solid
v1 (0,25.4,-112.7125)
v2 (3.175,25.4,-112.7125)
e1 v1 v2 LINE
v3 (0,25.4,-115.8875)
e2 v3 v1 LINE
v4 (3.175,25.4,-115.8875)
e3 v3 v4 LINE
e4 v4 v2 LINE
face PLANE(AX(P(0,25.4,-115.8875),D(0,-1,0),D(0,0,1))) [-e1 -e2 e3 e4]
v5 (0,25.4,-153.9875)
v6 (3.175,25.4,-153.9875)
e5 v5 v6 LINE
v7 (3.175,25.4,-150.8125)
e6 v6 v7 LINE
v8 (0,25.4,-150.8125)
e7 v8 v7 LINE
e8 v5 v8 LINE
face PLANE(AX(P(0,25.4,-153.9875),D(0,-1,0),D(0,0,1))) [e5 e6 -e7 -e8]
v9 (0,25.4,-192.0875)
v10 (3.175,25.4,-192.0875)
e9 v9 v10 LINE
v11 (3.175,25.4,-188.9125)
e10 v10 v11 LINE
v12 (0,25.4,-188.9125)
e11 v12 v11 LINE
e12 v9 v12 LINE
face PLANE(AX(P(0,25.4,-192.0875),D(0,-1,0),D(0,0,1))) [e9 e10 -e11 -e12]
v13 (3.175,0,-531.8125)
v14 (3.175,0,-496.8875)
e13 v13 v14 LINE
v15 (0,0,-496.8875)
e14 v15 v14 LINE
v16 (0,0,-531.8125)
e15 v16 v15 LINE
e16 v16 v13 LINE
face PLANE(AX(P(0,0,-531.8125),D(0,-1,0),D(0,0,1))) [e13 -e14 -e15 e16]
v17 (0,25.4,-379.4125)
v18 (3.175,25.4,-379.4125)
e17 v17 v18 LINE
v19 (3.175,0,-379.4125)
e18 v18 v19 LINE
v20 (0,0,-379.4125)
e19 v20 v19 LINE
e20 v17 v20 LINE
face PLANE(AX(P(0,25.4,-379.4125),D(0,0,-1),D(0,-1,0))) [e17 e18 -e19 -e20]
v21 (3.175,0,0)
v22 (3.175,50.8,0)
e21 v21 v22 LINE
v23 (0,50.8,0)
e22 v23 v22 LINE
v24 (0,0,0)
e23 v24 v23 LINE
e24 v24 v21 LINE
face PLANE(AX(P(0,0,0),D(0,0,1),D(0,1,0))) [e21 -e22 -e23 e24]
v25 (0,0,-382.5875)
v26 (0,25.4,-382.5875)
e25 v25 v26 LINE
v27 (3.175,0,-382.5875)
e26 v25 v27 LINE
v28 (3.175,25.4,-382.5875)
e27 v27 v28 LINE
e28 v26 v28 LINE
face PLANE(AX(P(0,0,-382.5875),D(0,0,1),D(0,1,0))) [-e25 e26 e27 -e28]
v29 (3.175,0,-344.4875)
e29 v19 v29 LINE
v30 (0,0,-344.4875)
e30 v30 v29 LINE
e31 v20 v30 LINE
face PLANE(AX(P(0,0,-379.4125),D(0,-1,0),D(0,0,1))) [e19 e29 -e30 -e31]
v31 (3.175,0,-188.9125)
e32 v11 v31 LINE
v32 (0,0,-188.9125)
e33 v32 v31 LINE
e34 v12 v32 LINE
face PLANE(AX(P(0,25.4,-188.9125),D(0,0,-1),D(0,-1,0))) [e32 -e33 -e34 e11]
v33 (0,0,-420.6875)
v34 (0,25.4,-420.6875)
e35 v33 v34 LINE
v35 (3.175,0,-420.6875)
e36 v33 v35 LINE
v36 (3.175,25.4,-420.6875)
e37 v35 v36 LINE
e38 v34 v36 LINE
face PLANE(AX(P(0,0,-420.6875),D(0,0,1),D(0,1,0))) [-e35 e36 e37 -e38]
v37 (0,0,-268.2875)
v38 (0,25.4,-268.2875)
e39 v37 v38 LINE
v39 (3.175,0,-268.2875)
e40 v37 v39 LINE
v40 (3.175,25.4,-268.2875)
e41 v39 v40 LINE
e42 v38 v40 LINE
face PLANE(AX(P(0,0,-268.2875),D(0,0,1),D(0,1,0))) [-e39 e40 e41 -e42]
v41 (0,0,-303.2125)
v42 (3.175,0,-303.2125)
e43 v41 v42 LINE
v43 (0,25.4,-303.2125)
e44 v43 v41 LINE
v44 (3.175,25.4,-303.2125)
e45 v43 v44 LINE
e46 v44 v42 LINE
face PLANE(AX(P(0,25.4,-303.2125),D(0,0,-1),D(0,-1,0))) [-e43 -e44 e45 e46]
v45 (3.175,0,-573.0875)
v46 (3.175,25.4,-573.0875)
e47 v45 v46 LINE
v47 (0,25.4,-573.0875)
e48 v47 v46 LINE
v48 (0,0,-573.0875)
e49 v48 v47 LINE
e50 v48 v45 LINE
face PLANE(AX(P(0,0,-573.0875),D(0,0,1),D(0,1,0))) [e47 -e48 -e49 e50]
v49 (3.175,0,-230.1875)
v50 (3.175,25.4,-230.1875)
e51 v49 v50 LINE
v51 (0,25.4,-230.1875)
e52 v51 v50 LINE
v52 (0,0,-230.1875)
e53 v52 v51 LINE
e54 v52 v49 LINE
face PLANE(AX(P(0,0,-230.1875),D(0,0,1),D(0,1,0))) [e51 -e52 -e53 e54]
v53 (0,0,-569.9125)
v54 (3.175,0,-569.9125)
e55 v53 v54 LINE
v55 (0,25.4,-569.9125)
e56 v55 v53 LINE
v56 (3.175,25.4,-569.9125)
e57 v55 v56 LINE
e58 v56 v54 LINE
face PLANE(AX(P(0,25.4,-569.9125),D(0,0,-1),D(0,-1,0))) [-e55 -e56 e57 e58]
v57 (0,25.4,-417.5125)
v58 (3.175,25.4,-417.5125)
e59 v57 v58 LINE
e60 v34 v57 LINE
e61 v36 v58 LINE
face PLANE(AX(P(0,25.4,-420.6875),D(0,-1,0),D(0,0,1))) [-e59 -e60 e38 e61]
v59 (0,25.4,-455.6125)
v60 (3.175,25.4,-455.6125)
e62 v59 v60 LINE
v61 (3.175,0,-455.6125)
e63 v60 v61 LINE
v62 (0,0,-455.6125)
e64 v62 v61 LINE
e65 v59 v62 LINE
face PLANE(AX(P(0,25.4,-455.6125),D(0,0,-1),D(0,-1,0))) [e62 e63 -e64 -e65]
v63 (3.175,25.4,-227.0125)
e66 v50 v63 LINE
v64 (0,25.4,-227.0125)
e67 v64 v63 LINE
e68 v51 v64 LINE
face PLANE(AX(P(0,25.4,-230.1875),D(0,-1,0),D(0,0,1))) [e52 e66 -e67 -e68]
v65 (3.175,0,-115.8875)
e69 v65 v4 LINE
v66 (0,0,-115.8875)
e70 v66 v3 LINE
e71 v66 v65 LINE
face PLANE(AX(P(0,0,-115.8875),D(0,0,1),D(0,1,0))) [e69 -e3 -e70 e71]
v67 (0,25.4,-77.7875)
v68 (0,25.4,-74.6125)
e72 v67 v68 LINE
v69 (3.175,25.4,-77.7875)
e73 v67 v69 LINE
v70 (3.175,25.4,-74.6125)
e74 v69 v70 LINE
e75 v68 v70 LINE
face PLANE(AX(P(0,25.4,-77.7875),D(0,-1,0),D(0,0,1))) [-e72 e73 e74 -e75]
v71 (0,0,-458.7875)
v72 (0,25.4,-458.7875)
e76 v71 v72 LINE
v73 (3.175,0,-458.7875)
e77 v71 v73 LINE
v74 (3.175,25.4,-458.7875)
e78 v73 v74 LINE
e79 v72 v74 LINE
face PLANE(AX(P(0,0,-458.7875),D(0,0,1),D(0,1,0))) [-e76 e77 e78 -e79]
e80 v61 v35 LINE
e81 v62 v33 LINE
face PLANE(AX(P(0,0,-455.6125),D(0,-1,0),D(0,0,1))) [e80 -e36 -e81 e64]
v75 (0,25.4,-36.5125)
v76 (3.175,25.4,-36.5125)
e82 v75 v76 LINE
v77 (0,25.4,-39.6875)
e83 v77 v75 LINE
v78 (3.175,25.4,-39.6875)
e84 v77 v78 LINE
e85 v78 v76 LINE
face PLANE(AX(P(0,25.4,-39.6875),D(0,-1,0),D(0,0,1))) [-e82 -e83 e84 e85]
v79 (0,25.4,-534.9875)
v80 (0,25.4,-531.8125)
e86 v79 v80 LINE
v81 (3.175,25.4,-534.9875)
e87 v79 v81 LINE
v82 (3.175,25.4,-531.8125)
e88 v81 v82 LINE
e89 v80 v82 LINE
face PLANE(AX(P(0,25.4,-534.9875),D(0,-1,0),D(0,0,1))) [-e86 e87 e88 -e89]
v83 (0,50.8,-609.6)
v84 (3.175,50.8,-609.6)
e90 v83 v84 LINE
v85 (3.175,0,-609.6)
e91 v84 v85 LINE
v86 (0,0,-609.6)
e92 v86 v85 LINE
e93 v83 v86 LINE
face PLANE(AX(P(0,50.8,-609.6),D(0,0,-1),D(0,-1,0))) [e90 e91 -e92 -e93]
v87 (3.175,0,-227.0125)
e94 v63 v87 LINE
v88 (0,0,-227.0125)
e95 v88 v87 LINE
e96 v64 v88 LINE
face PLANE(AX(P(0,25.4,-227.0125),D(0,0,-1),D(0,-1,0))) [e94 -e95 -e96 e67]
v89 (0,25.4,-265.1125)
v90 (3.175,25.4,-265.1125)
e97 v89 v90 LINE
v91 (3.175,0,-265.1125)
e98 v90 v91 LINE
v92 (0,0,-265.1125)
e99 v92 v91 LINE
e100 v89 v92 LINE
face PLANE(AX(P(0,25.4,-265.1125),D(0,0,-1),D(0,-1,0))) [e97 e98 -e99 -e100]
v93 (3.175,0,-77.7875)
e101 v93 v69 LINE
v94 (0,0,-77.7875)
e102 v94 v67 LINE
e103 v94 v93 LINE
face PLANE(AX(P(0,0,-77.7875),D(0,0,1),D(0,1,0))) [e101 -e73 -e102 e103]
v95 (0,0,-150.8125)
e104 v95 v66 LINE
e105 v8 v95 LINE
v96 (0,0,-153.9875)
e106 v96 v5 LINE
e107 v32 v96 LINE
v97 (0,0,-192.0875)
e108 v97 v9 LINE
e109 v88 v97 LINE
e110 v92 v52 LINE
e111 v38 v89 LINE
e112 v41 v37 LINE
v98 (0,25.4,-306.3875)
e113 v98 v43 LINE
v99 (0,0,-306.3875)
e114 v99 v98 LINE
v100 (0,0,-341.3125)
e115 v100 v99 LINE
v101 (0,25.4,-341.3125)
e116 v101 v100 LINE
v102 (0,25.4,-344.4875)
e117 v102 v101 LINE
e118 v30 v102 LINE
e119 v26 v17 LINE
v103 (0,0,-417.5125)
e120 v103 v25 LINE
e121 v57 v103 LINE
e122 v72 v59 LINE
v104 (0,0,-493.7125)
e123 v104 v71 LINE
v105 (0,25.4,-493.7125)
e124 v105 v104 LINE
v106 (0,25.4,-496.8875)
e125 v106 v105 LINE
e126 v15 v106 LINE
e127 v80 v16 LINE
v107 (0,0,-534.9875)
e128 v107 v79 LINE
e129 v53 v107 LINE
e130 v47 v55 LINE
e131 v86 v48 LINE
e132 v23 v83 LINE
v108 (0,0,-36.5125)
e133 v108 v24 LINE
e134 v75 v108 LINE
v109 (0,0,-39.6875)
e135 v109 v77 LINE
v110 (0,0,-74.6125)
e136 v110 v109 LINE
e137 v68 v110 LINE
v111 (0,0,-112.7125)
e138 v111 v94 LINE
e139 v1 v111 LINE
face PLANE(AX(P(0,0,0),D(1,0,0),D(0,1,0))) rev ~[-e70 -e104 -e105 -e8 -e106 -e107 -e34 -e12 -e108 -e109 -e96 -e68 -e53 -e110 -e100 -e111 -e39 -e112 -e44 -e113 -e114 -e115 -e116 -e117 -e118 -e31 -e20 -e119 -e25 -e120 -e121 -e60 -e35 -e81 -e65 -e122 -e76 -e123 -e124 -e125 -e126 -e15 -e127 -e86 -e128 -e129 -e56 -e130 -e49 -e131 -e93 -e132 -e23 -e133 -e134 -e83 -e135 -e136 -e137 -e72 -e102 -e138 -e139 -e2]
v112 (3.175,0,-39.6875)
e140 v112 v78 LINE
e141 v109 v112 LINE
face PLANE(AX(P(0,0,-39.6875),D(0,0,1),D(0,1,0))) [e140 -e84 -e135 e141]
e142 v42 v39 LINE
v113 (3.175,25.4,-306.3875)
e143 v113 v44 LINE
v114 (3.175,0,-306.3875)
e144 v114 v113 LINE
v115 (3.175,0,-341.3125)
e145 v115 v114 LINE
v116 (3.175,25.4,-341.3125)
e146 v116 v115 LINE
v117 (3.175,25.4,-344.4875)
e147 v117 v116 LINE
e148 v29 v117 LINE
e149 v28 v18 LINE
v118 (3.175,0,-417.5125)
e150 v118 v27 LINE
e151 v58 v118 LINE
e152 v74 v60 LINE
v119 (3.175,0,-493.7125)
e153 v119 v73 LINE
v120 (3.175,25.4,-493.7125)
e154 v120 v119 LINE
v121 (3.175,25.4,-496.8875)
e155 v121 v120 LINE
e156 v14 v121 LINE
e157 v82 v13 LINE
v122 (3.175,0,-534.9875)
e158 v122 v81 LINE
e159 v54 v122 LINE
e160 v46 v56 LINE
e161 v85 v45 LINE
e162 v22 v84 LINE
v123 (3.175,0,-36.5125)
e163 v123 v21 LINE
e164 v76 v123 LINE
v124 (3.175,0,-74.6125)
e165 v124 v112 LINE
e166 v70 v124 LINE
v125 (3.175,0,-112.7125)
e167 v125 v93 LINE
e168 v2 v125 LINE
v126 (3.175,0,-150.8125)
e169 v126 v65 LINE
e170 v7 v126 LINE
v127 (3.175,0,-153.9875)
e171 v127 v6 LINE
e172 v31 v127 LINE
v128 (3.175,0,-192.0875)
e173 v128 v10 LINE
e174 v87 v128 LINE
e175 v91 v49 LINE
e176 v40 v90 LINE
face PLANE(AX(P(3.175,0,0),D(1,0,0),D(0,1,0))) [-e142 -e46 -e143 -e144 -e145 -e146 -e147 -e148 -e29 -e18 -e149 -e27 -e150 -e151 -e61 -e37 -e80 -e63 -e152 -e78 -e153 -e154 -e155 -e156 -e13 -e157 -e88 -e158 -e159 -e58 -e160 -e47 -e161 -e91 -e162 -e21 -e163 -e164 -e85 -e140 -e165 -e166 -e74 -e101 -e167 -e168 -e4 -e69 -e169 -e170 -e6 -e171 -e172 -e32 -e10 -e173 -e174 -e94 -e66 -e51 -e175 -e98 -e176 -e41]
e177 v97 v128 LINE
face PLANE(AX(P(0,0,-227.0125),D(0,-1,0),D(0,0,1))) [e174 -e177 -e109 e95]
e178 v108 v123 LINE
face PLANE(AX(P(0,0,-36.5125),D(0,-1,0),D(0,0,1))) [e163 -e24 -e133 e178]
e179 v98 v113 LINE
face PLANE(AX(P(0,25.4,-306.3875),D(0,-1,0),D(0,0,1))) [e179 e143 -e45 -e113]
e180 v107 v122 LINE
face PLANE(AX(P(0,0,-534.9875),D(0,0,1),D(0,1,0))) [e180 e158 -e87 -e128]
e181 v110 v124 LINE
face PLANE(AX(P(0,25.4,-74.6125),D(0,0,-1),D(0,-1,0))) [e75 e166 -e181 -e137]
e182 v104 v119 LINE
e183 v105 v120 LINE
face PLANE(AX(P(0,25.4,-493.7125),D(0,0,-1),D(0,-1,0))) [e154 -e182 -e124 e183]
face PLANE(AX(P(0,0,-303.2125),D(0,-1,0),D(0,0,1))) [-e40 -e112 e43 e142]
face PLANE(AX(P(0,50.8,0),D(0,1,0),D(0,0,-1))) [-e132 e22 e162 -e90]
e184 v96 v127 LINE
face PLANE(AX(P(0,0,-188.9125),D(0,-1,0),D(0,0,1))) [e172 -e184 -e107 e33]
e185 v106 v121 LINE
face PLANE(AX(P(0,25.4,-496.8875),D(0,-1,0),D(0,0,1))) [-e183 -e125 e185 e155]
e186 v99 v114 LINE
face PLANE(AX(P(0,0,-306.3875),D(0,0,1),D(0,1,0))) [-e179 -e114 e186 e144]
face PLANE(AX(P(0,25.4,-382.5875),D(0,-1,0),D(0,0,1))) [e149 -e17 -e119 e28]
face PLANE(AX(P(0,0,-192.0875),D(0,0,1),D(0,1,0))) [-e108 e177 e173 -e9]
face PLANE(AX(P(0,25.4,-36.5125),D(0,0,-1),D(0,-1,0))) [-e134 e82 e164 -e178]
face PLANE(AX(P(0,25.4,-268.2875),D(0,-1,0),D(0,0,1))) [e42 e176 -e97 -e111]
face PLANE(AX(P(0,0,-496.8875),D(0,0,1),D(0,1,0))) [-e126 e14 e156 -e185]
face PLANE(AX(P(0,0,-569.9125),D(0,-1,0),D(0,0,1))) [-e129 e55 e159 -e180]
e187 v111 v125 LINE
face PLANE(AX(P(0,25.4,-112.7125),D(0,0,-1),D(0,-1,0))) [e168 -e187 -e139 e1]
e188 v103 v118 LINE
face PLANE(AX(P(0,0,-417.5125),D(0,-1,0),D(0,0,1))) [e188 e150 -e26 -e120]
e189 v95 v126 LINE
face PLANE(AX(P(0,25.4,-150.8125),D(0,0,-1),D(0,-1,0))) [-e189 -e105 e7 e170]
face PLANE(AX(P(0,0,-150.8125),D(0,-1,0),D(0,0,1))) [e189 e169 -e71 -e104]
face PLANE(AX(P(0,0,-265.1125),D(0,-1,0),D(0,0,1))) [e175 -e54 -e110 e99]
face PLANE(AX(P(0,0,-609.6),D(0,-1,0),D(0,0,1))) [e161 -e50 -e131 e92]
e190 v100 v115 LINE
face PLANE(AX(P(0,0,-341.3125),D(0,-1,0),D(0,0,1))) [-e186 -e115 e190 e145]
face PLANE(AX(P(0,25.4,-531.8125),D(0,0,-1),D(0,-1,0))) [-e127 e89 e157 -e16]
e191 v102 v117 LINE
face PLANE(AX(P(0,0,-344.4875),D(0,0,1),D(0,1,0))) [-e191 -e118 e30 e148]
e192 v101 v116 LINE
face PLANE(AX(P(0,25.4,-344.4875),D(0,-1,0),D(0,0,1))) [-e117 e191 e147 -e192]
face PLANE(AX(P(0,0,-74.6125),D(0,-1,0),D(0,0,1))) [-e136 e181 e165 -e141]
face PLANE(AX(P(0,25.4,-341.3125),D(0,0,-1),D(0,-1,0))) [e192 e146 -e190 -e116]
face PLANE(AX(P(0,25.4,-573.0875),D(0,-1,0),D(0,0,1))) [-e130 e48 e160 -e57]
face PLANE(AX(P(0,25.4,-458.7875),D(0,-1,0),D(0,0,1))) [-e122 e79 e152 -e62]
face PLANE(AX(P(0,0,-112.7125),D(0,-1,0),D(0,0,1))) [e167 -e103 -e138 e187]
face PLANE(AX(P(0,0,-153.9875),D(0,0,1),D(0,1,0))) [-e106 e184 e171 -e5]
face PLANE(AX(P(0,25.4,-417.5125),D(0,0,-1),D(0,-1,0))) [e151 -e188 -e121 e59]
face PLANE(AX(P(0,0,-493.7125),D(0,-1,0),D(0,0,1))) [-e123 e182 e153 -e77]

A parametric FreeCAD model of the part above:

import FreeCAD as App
import Part
import Sketcher
from FreeCAD import Vector
Q = App.Units.Quantity


def add_polygon(sketch, points):
    """Adds a closed chain of lines whose ends are joined by coincident constraints."""
    first, n = sketch.GeometryCount, len(points)
    for a, b in zip(points, points[1:] + points[:1]):
        sketch.addGeometry(Part.LineSegment(App.Vector(*a, 0), App.Vector(*b, 0)), False)
    for i in range(n):
        sketch.addConstraint(Sketcher.Constraint("Coincident", first + i, 2, first + (i + 1) % n, 1))

doc = App.newDocument("Part")
body = doc.addObject("PartDesign::Body", "Body")

sketch1 = body.newObject("Sketcher::SketchObject", "Sketch")
sketch1.AttachmentSupport = (doc.getObject("YZ_Plane"), [""])
sketch1.MapMode = "FlatFace"
add_polygon(sketch1, [(50.8, 0), (0, 0), (0, -36.5125), (25.4, -36.5125), (25.4, -39.6875), (0, -39.6875), (0, -74.6125), (25.4, -74.6125), (25.4, -77.7875), (0, -77.7875), (0, -112.7125), (25.4, -112.7125), (25.4, -115.8875), (0, -115.8875), (0, -150.8125), (25.4, -150.8125), (25.4, -153.9875), (0, -153.9875), (0, -188.9125), (25.4, -188.9125), (25.4, -192.0875), (0, -192.0875), (0, -227.0125), (25.4, -227.0125), (25.4, -230.1875), (0, -230.1875), (0, -265.1125), (25.4, -265.1125), (25.4, -268.2875), (0, -268.2875), (0, -303.2125), (25.4, -303.2125), (25.4, -306.3875), (0, -306.3875), (0, -341.3125), (25.4, -341.3125), (25.4, -344.4875), (0, -344.4875), (0, -379.4125), (25.4, -379.4125), (25.4, -382.5875), (0, -382.5875), (0, -417.5125), (25.4, -417.5125), (25.4, -420.6875), (0, -420.6875), (0, -455.6125), (25.4, -455.6125), (25.4, -458.7875), (0, -458.7875), (0, -493.7125), (25.4, -493.7125), (25.4, -496.8875), (0, -496.8875), (0, -531.8125), (25.4, -531.8125), (25.4, -534.9875), (0, -534.9875), (0, -569.9125), (25.4, -569.9125), (25.4, -573.0875), (0, -573.0875), (0, -609.6), (50.8, -609.6)])
sketch1.addConstraint([
    Sketcher.Constraint("Horizontal", 0),
    Sketcher.Constraint("Vertical", 1),
    Sketcher.Constraint("Horizontal", 2),
    Sketcher.Constraint("Vertical", 3),
    Sketcher.Constraint("Horizontal", 4),
    Sketcher.Constraint("Vertical", 5),
    Sketcher.Constraint("Horizontal", 6),
    Sketcher.Constraint("Vertical", 7),
    Sketcher.Constraint("Horizontal", 8),
    Sketcher.Constraint("Vertical", 9),
    Sketcher.Constraint("Horizontal", 10),
    Sketcher.Constraint("Vertical", 11),
    Sketcher.Constraint("Horizontal", 12),
    Sketcher.Constraint("Vertical", 13),
    Sketcher.Constraint("Horizontal", 14),
    Sketcher.Constraint("Vertical", 15),
    Sketcher.Constraint("Horizontal", 16),
    Sketcher.Constraint("Vertical", 17),
    Sketcher.Constraint("Horizontal", 18),
    Sketcher.Constraint("Vertical", 19),
    Sketcher.Constraint("Horizontal", 20),
    Sketcher.Constraint("Vertical", 21),
    Sketcher.Constraint("Horizontal", 22),
    Sketcher.Constraint("Vertical", 23),
    Sketcher.Constraint("Horizontal", 24),
    Sketcher.Constraint("Vertical", 25),
    Sketcher.Constraint("Horizontal", 26),
    Sketcher.Constraint("Vertical", 27),
    Sketcher.Constraint("Horizontal", 28),
    Sketcher.Constraint("Vertical", 29),
    Sketcher.Constraint("Horizontal", 30),
    Sketcher.Constraint("Vertical", 31),
    Sketcher.Constraint("Horizontal", 32),
    Sketcher.Constraint("Vertical", 33),
    Sketcher.Constraint("Horizontal", 34),
    Sketcher.Constraint("Vertical", 35),
    Sketcher.Constraint("Horizontal", 36),
    Sketcher.Constraint("Vertical", 37),
    Sketcher.Constraint("Horizontal", 38),
    Sketcher.Constraint("Vertical", 39),
    Sketcher.Constraint("Horizontal", 40),
    Sketcher.Constraint("Vertical", 41),
    Sketcher.Constraint("Horizontal", 42),
    Sketcher.Constraint("Vertical", 43),
    Sketcher.Constraint("Horizontal", 44),
    Sketcher.Constraint("Vertical", 45),
    Sketcher.Constraint("Horizontal", 46),
    Sketcher.Constraint("Vertical", 47),
    Sketcher.Constraint("Horizontal", 48),
    Sketcher.Constraint("Vertical", 49),
    Sketcher.Constraint("Horizontal", 50),
    Sketcher.Constraint("Vertical", 51),
    Sketcher.Constraint("Horizontal", 52),
    Sketcher.Constraint("Vertical", 53),
    Sketcher.Constraint("Horizontal", 54),
    Sketcher.Constraint("Vertical", 55),
    Sketcher.Constraint("Horizontal", 56),
    Sketcher.Constraint("Vertical", 57),
    Sketcher.Constraint("Horizontal", 58),
    Sketcher.Constraint("Vertical", 59),
    Sketcher.Constraint("Horizontal", 60),
    Sketcher.Constraint("Vertical", 61),
    Sketcher.Constraint("Horizontal", 62),
    Sketcher.Constraint("Vertical", 63),
    Sketcher.Constraint("Coincident", 0, 2, -1, 1),
    Sketcher.Constraint("PointOnObject", 4, 2, -2),
    Sketcher.Constraint("PointOnObject", 8, 2, -2),
    Sketcher.Constraint("PointOnObject", 12, 2, -2),
    Sketcher.Constraint("PointOnObject", 16, 2, -2),
    Sketcher.Constraint("PointOnObject", 20, 2, -2),
    Sketcher.Constraint("PointOnObject", 24, 2, -2),
    Sketcher.Constraint("PointOnObject", 28, 2, -2),
    Sketcher.Constraint("PointOnObject", 32, 2, -2),
    Sketcher.Constraint("PointOnObject", 36, 2, -2),
    Sketcher.Constraint("PointOnObject", 40, 2, -2),
    Sketcher.Constraint("PointOnObject", 44, 2, -2),
    Sketcher.Constraint("PointOnObject", 48, 2, -2),
    Sketcher.Constraint("PointOnObject", 52, 2, -2),
    Sketcher.Constraint("PointOnObject", 56, 2, -2),
    Sketcher.Constraint("PointOnObject", 60, 2, -2),
    Sketcher.Constraint("Vertical", 3, 2, 6, 2),
    Sketcher.Constraint("Vertical", 7, 2, 10, 2),
    Sketcher.Constraint("Vertical", 11, 2, 14, 2),
    Sketcher.Constraint("Vertical", 15, 2, 18, 2),
    Sketcher.Constraint("Vertical", 19, 2, 22, 2),
    Sketcher.Constraint("Vertical", 23, 2, 26, 2),
    Sketcher.Constraint("Vertical", 27, 2, 30, 2),
    Sketcher.Constraint("Vertical", 31, 2, 34, 2),
    Sketcher.Constraint("Vertical", 35, 2, 38, 2),
    Sketcher.Constraint("Vertical", 39, 2, 42, 2),
    Sketcher.Constraint("Vertical", 43, 2, 46, 2),
    Sketcher.Constraint("Vertical", 47, 2, 50, 2),
    Sketcher.Constraint("Vertical", 51, 2, 54, 2),
    Sketcher.Constraint("Vertical", 55, 2, 58, 2),
    Sketcher.Constraint("Equal", 3, 7),
    Sketcher.Constraint("Equal", 5, 9),
    Sketcher.Constraint("Equal", 7, 11),
    Sketcher.Constraint("Equal", 9, 13),
    Sketcher.Constraint("Equal", 11, 15),
    Sketcher.Constraint("Equal", 13, 17),
    Sketcher.Constraint("Equal", 15, 19),
    Sketcher.Constraint("Equal", 17, 21),
    Sketcher.Constraint("Equal", 19, 23),
    Sketcher.Constraint("Equal", 21, 25),
    Sketcher.Constraint("Equal", 23, 27),
    Sketcher.Constraint("Equal", 25, 29),
    Sketcher.Constraint("Equal", 27, 31),
    Sketcher.Constraint("Equal", 29, 33),
    Sketcher.Constraint("Equal", 31, 35),
    Sketcher.Constraint("Equal", 33, 37),
    Sketcher.Constraint("Equal", 35, 39),
    Sketcher.Constraint("Equal", 37, 41),
    Sketcher.Constraint("Equal", 39, 43),
    Sketcher.Constraint("Equal", 41, 45),
    Sketcher.Constraint("Equal", 43, 47),
    Sketcher.Constraint("Equal", 45, 49),
    Sketcher.Constraint("Equal", 47, 51),
    Sketcher.Constraint("Equal", 49, 53),
    Sketcher.Constraint("Equal", 51, 55),
    Sketcher.Constraint("Equal", 53, 57),
    Sketcher.Constraint("Equal", 55, 59),
    Sketcher.Constraint("Equal", 1, 61),
    Sketcher.Constraint("DistanceX", 0, 2, 0, 1, Q("2 in")),
    Sketcher.Constraint("DistanceX", 2, 1, 2, 2, Q("1 in")),
    Sketcher.Constraint("DistanceY", 63, 1, 63, 2, Q("24 in")),
    Sketcher.Constraint("DistanceY", 1, 2, 1, 1, Q("1.4375 in")),
    Sketcher.Constraint("DistanceY", 3, 2, 3, 1, Q("0.125 in")),
])
pad1 = body.newObject("PartDesign::Pad", "Pad")
pad1.Profile = sketch1
pad1.Length = Q("0.125 in")

doc.recompute()
